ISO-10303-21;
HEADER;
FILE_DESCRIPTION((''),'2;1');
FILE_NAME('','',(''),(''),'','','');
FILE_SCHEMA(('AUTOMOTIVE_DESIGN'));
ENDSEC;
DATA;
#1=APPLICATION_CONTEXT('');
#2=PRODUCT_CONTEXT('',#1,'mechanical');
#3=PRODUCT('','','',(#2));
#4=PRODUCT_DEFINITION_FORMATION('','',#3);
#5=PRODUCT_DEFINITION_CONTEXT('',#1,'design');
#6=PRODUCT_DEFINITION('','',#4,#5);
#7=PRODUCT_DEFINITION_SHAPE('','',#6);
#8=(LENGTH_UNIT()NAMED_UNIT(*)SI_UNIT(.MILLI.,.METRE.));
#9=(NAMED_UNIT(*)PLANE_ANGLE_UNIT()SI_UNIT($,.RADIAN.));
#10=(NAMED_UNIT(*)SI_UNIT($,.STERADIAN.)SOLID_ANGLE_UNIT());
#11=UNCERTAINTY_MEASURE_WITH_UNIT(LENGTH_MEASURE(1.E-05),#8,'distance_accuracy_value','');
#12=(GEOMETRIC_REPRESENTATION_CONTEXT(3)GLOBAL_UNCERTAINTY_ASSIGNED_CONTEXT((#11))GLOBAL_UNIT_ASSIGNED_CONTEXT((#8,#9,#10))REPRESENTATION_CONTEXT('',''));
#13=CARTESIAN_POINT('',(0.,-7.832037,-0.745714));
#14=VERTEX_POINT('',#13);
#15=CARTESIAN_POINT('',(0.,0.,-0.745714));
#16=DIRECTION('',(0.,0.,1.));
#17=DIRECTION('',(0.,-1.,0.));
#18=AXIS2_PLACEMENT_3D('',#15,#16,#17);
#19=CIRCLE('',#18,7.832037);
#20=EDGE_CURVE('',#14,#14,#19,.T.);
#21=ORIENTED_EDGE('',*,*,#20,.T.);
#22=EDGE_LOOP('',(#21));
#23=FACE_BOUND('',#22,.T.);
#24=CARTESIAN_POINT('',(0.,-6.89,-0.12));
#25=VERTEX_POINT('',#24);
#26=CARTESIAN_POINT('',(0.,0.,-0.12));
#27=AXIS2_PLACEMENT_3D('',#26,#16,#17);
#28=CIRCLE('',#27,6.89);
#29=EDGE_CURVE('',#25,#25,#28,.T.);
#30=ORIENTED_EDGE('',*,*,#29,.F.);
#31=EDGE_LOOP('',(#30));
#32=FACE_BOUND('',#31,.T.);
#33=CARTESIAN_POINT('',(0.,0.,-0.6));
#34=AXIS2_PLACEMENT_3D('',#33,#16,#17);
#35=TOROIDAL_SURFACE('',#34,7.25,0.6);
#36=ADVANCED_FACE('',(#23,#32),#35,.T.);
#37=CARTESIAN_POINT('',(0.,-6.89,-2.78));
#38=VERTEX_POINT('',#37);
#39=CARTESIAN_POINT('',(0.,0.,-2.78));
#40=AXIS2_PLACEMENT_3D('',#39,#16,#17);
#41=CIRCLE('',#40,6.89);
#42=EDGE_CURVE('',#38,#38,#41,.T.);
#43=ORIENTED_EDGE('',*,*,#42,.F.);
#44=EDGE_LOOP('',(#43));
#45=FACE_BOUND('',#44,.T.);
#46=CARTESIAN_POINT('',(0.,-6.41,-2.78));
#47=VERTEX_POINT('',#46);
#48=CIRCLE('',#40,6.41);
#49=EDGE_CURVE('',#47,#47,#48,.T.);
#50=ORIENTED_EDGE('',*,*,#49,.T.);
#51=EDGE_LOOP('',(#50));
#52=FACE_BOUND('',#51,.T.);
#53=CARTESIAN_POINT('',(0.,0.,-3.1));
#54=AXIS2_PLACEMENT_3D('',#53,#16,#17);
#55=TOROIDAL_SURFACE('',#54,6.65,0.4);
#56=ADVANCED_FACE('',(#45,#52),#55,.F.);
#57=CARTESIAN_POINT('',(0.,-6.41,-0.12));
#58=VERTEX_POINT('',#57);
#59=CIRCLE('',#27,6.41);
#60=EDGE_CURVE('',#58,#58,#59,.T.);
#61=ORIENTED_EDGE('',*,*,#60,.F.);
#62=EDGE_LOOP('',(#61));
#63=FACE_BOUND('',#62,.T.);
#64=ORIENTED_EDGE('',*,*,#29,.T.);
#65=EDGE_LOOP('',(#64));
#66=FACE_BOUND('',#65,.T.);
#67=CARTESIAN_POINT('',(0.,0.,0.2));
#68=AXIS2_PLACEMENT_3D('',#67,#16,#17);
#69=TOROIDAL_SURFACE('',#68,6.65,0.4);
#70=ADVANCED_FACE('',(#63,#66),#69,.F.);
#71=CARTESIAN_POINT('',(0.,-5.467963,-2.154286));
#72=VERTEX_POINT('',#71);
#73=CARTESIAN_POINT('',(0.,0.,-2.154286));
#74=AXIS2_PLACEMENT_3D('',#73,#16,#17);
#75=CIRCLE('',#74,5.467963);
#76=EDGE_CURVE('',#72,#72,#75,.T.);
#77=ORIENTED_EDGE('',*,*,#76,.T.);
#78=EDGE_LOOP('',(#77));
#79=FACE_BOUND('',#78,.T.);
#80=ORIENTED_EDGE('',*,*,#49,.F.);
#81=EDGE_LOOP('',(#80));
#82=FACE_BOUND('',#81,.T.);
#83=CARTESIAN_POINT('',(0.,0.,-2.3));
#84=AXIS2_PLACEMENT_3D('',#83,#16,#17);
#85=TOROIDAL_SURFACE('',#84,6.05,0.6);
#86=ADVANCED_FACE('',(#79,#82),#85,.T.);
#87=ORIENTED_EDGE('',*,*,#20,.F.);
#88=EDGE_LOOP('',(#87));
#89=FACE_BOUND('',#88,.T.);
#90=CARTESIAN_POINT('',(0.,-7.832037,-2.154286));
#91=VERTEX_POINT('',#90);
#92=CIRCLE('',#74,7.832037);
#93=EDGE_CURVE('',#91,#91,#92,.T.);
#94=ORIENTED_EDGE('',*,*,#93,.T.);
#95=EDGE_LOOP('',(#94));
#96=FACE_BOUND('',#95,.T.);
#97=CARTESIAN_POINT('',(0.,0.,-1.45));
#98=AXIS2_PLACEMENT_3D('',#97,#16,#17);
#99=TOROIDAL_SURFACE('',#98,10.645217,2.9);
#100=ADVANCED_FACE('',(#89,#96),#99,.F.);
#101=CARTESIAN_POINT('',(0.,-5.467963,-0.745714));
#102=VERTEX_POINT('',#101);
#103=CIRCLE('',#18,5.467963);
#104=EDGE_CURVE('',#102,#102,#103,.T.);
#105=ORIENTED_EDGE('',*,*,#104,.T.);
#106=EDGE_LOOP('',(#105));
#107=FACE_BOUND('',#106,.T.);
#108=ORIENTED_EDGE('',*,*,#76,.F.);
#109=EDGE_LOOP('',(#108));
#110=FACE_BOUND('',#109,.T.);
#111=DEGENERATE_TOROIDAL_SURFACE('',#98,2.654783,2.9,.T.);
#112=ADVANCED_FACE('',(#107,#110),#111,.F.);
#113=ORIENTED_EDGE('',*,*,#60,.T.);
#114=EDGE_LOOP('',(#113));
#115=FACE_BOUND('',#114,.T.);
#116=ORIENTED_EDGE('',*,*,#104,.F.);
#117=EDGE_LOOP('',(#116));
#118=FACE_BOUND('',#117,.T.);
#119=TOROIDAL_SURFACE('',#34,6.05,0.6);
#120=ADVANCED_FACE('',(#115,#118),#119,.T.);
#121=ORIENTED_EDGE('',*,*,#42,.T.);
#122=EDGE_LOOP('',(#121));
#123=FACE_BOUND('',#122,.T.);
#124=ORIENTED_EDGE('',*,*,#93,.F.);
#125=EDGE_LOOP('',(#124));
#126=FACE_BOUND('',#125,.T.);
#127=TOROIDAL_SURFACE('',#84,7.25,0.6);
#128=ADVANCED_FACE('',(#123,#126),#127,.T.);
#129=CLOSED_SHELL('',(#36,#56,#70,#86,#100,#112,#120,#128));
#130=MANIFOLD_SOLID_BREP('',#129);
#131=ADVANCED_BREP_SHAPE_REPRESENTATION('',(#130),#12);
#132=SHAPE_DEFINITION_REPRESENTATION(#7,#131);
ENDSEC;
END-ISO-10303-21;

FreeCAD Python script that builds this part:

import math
import FreeCAD as App
import Part
import Sketcher
from FreeCAD import Vector
Q = App.Units.Quantity

doc = App.newDocument("Part")
params = doc.addObject("Spreadsheet::Sheet", "Params")
for row, (alias, value) in enumerate([
    ("sketch1_radius", "0.6 mm"),
    ("sketch1_radius2", "0.4 mm"),
    ("sketch1_radius3", "2.9 mm"),
    ("revolution_angle", "360 deg"),
], start=1):
    params.set(f"A{row}", alias)
    params.set(f"B{row}", "=" + value)
    params.setAlias(f"B{row}", alias)

body = doc.addObject("PartDesign::Body", "Body")

sketch1 = doc.addObject("Sketcher::SketchObject", "Sketch")
body.addObject(sketch1)
sketch1.AttachmentSupport = (doc.YZ_Plane, [""])
sketch1.MapMode = "FlatFace"
sketch1.addGeometry([
    Part.ArcOfCircle(Part.Circle(Vector(7.25, -0.6, 0), Vector(0, 0, 1), 0.6), math.radians(-14.055233), math.radians(126.869898)),
    Part.ArcOfCircle(Part.Circle(Vector(6.65, 0.2, 0), Vector(0, 0, 1), 0.4), math.radians(-126.869898), math.radians(-53.130102)),
    Part.ArcOfCircle(Part.Circle(Vector(6.05, -0.6, 0), Vector(0, 0, 1), 0.6), math.radians(53.130102), math.radians(194.055233)),
    Part.ArcOfCircle(Part.Circle(Vector(2.654783, -1.45, 0), Vector(0, 0, 1), 2.9), math.radians(-14.055233), math.radians(14.055233)),
    Part.ArcOfCircle(Part.Circle(Vector(6.05, -2.3, 0), Vector(0, 0, 1), 0.6), math.radians(165.944767), math.radians(306.869898)),
    Part.ArcOfCircle(Part.Circle(Vector(6.65, -3.1, 0), Vector(0, 0, 1), 0.4), math.radians(53.130102), math.radians(126.869898)),
    Part.ArcOfCircle(Part.Circle(Vector(7.25, -2.3, 0), Vector(0, 0, 1), 0.6), math.radians(-126.869898), math.radians(14.055233)),
    Part.ArcOfCircle(Part.Circle(Vector(10.645217, -1.45, 0), Vector(0, 0, 1), 2.9), math.radians(165.944767), math.radians(194.055233)),
], False)
sketch1.addConstraint([
    Sketcher.Constraint("Tangent", 0, 2, 1, 2),
    Sketcher.Constraint("Tangent", 1, 1, 2, 1),
    Sketcher.Constraint("Tangent", 2, 2, 3, 2),
    Sketcher.Constraint("Tangent", 3, 1, 4, 1),
    Sketcher.Constraint("Tangent", 4, 2, 5, 2),
    Sketcher.Constraint("Tangent", 5, 1, 6, 1),
    Sketcher.Constraint("Tangent", 6, 2, 7, 2),
    Sketcher.Constraint("Tangent", 7, 1, 0, 1),
    Sketcher.Constraint("Equal", 0, 2),
    Sketcher.Constraint("Equal", 2, 4),
    Sketcher.Constraint("Equal", 1, 5),
    Sketcher.Constraint("Equal", 4, 6),
    Sketcher.Constraint("Equal", 3, 7),
    Sketcher.Constraint("Horizontal", 0, 3, 2, 3),
    Sketcher.Constraint("Horizontal", 4, 3, 6, 3),
    Sketcher.Constraint("Horizontal", 3, 3, 7, 3),
    Sketcher.Constraint("Vertical", 2, 3, 4, 3),
    Sketcher.Constraint("Radius", 0, Q("0.6 mm")),
    Sketcher.Constraint("Radius", 1, Q("0.4 mm")),
    Sketcher.Constraint("Radius", 3, Q("2.9 mm")),
    Sketcher.Constraint("DistanceY", 0, 3, -1, 1, Q("0.6 mm")),
    Sketcher.Constraint("DistanceY", -1, 1, 1, 3, Q("0.2 mm")),
    Sketcher.Constraint("DistanceY", 4, 3, -1, 1, Q("2.3 mm")),
    Sketcher.Constraint("DistanceX", -1, 1, 0, 3, Q("7.25 mm")),
])
sketch1.setExpression("Constraints[17]", "Params.sketch1_radius")
sketch1.setExpression("Constraints[18]", "Params.sketch1_radius2")
sketch1.setExpression("Constraints[19]", "Params.sketch1_radius3")
revolution = doc.addObject("PartDesign::Revolution", "Revolution")
body.addObject(revolution)
revolution.Profile = sketch1
revolution.ReferenceAxis = (sketch1, ["V_Axis"])
revolution.setExpression("Angle", "Params.revolution_angle")

doc.recompute()
